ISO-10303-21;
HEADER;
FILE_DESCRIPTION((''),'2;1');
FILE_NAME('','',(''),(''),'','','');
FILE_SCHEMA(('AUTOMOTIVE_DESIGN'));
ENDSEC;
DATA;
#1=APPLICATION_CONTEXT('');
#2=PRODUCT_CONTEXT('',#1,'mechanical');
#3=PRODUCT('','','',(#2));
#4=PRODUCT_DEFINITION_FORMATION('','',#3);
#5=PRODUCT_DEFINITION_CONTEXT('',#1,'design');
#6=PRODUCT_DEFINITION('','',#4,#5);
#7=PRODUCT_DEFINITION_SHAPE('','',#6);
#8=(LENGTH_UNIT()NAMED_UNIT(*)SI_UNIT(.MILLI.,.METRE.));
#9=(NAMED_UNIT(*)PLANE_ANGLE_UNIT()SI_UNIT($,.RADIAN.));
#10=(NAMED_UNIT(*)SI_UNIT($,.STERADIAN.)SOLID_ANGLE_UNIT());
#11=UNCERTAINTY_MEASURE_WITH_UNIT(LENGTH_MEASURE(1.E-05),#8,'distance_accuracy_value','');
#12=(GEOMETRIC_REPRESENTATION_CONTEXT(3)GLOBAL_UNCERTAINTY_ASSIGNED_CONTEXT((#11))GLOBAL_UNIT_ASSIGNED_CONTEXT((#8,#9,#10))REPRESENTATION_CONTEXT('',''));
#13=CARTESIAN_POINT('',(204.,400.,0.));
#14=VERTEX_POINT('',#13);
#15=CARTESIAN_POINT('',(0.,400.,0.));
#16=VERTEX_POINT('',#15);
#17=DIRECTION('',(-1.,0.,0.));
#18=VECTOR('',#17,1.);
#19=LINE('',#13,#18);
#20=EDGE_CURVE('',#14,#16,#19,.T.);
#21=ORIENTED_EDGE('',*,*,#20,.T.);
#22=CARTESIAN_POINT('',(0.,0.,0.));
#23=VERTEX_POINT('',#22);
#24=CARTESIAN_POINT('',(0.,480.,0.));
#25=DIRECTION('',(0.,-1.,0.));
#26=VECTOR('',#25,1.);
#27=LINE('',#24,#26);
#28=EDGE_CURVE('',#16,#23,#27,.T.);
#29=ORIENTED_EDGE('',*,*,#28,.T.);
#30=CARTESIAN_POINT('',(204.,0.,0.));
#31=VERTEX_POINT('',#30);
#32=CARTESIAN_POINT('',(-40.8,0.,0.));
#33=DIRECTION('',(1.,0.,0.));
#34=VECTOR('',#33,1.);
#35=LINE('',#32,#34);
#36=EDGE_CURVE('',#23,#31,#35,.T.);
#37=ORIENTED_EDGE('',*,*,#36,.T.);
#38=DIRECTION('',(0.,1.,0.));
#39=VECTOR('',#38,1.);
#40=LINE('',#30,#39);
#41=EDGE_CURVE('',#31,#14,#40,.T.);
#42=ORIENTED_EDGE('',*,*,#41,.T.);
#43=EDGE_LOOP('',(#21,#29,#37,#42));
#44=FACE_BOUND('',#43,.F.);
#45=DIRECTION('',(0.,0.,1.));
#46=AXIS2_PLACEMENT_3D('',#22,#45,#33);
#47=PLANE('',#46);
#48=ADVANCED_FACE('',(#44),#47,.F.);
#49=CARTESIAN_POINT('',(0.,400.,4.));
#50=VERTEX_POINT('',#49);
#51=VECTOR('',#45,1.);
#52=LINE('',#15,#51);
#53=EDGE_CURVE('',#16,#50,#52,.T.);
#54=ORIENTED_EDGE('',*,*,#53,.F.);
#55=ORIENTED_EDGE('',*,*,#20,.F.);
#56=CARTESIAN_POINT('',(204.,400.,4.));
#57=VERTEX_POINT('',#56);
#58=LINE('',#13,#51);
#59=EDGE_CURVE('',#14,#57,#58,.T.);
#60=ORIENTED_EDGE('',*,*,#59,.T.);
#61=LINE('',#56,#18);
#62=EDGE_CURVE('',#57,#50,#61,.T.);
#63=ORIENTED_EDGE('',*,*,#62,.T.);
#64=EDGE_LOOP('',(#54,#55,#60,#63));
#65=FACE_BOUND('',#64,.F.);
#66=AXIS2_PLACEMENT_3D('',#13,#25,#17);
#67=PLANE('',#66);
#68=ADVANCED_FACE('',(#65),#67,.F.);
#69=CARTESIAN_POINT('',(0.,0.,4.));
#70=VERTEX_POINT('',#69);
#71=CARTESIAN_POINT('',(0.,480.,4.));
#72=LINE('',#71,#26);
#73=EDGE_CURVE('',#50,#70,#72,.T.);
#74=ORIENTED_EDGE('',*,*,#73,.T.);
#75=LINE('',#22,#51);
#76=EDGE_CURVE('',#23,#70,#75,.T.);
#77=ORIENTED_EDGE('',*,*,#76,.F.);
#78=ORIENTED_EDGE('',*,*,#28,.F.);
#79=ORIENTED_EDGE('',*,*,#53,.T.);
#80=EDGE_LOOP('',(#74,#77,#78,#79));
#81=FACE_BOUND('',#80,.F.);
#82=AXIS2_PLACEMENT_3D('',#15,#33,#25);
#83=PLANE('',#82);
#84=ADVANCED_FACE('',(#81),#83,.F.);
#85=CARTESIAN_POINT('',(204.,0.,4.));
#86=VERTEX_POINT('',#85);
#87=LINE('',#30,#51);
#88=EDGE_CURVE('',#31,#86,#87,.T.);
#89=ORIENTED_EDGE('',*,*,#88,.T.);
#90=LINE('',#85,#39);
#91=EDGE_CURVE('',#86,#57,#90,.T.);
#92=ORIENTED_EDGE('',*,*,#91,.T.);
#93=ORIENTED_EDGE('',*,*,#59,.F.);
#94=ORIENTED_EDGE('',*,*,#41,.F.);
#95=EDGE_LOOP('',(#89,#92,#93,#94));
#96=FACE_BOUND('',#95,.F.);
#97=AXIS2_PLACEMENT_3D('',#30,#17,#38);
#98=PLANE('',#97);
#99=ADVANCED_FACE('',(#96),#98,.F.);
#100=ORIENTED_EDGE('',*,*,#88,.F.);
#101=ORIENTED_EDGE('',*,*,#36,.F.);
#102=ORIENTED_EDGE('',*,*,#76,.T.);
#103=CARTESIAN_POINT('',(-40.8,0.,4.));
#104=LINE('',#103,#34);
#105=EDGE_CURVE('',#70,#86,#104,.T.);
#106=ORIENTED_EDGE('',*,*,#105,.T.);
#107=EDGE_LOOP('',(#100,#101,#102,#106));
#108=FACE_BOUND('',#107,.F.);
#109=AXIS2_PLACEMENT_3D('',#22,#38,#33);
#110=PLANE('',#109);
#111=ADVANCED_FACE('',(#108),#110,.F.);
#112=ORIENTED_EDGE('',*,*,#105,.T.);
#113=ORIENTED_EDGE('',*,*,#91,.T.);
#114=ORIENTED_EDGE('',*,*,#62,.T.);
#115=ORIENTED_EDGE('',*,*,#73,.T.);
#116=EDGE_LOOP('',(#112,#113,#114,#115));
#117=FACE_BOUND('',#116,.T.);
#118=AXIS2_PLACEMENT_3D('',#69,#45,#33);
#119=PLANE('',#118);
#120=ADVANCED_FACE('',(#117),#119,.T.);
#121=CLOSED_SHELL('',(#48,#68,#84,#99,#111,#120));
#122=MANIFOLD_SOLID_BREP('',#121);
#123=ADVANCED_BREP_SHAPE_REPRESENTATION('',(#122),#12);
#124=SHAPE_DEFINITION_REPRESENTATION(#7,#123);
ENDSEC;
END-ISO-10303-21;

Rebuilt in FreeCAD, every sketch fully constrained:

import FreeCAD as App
import Part
import Sketcher
from FreeCAD import Vector
Q = App.Units.Quantity

doc = App.newDocument("Part")
body = doc.addObject("PartDesign::Body", "Body")

# Sketch on XY plane
sketch1 = body.newObject("Sketcher::SketchObject", "Sketch")
sketch1.AttachmentSupport = (doc.getObject("XY_Plane"), [""])
sketch1.MapMode = "FlatFace"
sketch1.addGeometry([
    Part.LineSegment(Vector(204, 400, 0), Vector(0, 400, 0)),
    Part.LineSegment(Vector(0, 400, 0), Vector(0, 0, 0)),
    Part.LineSegment(Vector(0, 0, 0), Vector(204, 0, 0)),
    Part.LineSegment(Vector(204, 0, 0), Vector(204, 400, 0)),
], False)
sketch1.addConstraint([
    Sketcher.Constraint("Coincident", 0, 2, 1, 1),
    Sketcher.Constraint("Coincident", 1, 2, 2, 1),
    Sketcher.Constraint("Coincident", 2, 2, 3, 1),
    Sketcher.Constraint("Coincident", 3, 2, 0, 1),
    Sketcher.Constraint("Horizontal", 0),
    Sketcher.Constraint("Vertical", 1),
    Sketcher.Constraint("Horizontal", 2),
    Sketcher.Constraint("Vertical", 3),
    Sketcher.Constraint("Coincident", 1, 2, -1, 1),
    Sketcher.Constraint("DistanceX", 0, 2, 0, 1, Q("204 mm")),
    Sketcher.Constraint("DistanceY", 1, 2, 1, 1, Q("400 mm")),
])
pad1 = body.newObject("PartDesign::Pad", "Pad")
pad1.Profile = sketch1
pad1.Length = 4

doc.recompute()
